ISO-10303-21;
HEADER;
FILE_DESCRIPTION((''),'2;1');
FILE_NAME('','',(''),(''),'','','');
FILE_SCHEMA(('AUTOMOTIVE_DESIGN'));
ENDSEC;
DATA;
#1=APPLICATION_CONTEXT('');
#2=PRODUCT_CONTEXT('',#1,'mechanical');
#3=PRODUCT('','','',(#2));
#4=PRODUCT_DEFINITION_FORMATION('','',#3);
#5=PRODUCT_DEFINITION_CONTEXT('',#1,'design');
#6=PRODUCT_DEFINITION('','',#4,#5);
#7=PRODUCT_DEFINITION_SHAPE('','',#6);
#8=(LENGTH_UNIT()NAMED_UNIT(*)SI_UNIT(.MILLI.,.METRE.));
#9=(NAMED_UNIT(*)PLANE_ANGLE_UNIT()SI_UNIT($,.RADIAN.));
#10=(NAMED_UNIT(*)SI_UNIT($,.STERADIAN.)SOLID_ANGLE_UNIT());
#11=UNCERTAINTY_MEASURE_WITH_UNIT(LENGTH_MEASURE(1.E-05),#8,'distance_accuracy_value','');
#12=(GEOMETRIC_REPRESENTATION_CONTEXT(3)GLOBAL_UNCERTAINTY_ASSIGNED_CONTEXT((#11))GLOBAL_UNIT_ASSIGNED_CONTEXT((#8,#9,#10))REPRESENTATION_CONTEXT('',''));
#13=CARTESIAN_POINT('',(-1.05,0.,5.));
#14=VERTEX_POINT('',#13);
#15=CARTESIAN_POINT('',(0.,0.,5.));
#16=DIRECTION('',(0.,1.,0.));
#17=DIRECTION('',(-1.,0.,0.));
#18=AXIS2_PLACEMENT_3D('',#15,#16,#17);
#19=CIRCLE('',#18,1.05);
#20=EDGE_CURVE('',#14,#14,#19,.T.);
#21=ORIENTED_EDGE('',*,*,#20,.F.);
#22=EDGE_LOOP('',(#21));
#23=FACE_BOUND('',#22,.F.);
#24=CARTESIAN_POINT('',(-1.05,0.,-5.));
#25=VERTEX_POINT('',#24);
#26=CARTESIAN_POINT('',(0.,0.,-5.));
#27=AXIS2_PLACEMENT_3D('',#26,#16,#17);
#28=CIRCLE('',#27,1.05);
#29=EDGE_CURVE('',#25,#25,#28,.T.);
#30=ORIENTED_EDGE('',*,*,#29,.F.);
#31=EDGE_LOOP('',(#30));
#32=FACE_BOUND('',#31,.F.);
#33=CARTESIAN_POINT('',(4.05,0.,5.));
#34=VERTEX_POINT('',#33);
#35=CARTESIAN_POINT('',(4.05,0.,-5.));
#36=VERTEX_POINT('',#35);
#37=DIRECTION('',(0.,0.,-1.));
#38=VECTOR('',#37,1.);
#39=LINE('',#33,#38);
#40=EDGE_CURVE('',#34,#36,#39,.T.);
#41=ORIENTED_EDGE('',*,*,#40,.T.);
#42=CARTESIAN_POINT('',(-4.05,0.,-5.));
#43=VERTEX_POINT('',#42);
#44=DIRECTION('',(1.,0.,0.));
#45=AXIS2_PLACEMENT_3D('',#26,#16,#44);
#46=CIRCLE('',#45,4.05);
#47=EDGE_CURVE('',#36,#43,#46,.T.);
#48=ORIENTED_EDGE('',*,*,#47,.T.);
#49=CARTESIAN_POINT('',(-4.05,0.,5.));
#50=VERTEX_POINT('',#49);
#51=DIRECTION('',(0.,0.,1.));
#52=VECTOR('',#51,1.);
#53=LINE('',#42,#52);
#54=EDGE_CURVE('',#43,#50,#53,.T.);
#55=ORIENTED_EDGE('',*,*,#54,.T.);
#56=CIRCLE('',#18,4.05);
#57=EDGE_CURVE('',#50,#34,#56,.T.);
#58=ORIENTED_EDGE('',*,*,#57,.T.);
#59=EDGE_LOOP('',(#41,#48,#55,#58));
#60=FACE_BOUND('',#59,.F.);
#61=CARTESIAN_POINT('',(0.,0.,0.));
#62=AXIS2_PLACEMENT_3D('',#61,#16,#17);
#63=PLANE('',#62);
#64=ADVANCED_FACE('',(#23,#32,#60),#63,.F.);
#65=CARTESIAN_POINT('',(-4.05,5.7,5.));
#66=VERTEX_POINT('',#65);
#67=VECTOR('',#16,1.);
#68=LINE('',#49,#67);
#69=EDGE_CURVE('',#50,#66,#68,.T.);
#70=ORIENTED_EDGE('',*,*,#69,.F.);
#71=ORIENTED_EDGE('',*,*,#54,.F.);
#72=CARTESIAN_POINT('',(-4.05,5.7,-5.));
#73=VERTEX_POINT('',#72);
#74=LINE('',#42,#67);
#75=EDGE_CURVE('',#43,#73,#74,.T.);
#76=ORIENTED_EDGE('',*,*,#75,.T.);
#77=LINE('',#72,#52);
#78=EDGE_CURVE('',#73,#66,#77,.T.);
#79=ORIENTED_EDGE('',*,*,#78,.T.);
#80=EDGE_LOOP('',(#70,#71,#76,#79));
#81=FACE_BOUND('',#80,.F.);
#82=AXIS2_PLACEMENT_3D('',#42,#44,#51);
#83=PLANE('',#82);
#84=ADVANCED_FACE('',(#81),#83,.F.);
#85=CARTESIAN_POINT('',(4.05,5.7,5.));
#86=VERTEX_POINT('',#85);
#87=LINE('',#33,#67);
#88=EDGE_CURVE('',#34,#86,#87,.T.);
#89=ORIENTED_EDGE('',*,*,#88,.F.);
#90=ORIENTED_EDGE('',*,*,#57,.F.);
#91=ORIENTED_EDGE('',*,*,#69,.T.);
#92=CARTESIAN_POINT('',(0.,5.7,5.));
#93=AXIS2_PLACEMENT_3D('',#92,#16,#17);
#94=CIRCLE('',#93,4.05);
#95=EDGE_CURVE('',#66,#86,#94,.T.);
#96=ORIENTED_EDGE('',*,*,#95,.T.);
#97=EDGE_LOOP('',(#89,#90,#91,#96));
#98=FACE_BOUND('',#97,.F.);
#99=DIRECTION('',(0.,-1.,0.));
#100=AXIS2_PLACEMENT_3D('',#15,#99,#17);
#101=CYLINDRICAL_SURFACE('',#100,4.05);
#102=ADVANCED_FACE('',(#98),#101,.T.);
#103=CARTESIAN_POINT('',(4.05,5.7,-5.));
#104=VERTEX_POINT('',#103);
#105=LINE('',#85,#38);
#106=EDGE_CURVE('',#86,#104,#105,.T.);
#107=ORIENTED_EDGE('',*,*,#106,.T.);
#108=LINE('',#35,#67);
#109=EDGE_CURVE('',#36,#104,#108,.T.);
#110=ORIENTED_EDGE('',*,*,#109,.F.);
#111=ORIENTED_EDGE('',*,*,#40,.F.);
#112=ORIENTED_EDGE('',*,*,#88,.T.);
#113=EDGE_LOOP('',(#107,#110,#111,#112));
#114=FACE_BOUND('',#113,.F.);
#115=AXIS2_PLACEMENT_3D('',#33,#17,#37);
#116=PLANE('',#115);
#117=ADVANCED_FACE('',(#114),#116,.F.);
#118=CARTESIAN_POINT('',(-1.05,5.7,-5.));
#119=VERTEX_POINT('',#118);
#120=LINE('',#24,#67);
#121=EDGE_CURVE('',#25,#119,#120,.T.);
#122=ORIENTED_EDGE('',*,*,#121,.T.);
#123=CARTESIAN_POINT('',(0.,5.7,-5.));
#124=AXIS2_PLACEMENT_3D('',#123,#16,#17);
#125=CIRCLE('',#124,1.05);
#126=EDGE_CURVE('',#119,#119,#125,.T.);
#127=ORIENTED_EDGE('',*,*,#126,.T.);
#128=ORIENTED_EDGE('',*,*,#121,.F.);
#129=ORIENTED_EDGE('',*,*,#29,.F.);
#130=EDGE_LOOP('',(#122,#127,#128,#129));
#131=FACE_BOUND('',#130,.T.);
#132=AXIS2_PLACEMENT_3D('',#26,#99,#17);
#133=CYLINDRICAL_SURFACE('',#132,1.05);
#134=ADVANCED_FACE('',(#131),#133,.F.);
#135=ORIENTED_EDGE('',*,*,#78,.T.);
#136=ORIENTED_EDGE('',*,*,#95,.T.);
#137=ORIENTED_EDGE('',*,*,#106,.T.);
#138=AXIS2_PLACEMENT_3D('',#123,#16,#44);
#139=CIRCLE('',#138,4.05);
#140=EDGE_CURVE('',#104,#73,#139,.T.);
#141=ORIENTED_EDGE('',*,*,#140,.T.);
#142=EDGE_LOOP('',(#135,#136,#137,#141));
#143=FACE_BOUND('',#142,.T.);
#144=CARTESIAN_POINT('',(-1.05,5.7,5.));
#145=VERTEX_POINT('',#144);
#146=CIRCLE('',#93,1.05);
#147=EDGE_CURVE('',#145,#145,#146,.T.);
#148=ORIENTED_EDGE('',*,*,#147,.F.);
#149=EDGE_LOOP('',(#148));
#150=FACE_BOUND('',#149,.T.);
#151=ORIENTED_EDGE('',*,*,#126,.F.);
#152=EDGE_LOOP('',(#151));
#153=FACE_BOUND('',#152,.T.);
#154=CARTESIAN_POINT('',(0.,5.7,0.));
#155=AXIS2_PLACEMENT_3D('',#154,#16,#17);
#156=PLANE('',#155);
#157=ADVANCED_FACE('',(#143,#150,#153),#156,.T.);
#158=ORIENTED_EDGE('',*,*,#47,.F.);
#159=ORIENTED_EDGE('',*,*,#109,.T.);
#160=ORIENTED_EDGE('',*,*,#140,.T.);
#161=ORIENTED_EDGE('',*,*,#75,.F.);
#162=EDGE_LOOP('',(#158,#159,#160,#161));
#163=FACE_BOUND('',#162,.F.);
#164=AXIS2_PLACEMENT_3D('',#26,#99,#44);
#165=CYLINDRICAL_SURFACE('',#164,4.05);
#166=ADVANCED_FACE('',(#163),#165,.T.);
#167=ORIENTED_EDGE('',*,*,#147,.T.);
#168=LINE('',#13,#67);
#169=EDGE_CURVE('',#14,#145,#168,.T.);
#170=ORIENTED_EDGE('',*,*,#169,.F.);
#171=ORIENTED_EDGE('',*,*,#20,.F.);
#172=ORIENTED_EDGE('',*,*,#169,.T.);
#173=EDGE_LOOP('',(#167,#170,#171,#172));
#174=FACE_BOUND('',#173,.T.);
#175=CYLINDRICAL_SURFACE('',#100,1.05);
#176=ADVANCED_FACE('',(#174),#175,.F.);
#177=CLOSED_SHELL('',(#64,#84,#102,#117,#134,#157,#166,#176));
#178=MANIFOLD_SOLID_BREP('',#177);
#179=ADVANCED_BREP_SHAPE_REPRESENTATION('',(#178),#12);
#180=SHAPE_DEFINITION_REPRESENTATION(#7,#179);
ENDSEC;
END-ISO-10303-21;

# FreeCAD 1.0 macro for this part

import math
import FreeCAD as App
import Part
import Sketcher
Q = App.Units.Quantity

doc = App.newDocument("Part")
body = doc.addObject("PartDesign::Body", "Body")

# Sketch on XZ plane
sketch1 = body.newObject("Sketcher::SketchObject", "Sketch")
sketch1.AttachmentSupport = (doc.getObject("XZ_Plane"), [""])
sketch1.MapMode = "FlatFace"
sketch1.addGeometry([
    Part.ArcOfCircle(Part.Circle(App.Vector(0, 5, 0), App.Vector(0, 0, 1), 4.05), math.radians(0), math.radians(180)),  # 0
    Part.LineSegment(App.Vector(4.05, 5, 0), App.Vector(4.05, -5, 0)),  # 1
    Part.ArcOfCircle(Part.Circle(App.Vector(0, -5, 0), App.Vector(0, 0, 1), 4.05), math.radians(180), math.radians(360)),  # 2
    Part.LineSegment(App.Vector(-4.05, -5, 0), App.Vector(-4.05, 5, 0)),  # 3
    Part.Circle(App.Vector(0, -5, 0), App.Vector(0, 0, 1), 1.05),  # 4
    Part.Circle(App.Vector(0, 5, 0), App.Vector(0, 0, 1), 1.05),  # 5
], False)
sketch1.addConstraint([
    Sketcher.Constraint("Tangent", 0, 1, 1, 1),
    Sketcher.Constraint("Tangent", 1, 2, 2, 2),
    Sketcher.Constraint("Tangent", 2, 1, 3, 1),
    Sketcher.Constraint("Tangent", 3, 2, 0, 2),
    Sketcher.Constraint("Vertical", 1),
    Sketcher.Constraint("Vertical", 3),
    Sketcher.Constraint("Coincident", 4, 3, 2, 3),
    Sketcher.Constraint("Coincident", 5, 3, 0, 3),
    Sketcher.Constraint("Equal", 4, 5),
    Sketcher.Constraint("Symmetric", 0, 3, 2, 3, -1, 1),
    Sketcher.Constraint("Diameter", 4, Q("2.1 mm")),
    Sketcher.Constraint("DistanceY", 1, 2, 1, 1, Q("10 mm")),
    Sketcher.Constraint("Radius", 0, Q("4.05 mm")),
])
pad1 = body.newObject("PartDesign::Pad", "Pad")
pad1.Profile = sketch1
pad1.Length = 5.7
pad1.Reversed = True

doc.recompute()
